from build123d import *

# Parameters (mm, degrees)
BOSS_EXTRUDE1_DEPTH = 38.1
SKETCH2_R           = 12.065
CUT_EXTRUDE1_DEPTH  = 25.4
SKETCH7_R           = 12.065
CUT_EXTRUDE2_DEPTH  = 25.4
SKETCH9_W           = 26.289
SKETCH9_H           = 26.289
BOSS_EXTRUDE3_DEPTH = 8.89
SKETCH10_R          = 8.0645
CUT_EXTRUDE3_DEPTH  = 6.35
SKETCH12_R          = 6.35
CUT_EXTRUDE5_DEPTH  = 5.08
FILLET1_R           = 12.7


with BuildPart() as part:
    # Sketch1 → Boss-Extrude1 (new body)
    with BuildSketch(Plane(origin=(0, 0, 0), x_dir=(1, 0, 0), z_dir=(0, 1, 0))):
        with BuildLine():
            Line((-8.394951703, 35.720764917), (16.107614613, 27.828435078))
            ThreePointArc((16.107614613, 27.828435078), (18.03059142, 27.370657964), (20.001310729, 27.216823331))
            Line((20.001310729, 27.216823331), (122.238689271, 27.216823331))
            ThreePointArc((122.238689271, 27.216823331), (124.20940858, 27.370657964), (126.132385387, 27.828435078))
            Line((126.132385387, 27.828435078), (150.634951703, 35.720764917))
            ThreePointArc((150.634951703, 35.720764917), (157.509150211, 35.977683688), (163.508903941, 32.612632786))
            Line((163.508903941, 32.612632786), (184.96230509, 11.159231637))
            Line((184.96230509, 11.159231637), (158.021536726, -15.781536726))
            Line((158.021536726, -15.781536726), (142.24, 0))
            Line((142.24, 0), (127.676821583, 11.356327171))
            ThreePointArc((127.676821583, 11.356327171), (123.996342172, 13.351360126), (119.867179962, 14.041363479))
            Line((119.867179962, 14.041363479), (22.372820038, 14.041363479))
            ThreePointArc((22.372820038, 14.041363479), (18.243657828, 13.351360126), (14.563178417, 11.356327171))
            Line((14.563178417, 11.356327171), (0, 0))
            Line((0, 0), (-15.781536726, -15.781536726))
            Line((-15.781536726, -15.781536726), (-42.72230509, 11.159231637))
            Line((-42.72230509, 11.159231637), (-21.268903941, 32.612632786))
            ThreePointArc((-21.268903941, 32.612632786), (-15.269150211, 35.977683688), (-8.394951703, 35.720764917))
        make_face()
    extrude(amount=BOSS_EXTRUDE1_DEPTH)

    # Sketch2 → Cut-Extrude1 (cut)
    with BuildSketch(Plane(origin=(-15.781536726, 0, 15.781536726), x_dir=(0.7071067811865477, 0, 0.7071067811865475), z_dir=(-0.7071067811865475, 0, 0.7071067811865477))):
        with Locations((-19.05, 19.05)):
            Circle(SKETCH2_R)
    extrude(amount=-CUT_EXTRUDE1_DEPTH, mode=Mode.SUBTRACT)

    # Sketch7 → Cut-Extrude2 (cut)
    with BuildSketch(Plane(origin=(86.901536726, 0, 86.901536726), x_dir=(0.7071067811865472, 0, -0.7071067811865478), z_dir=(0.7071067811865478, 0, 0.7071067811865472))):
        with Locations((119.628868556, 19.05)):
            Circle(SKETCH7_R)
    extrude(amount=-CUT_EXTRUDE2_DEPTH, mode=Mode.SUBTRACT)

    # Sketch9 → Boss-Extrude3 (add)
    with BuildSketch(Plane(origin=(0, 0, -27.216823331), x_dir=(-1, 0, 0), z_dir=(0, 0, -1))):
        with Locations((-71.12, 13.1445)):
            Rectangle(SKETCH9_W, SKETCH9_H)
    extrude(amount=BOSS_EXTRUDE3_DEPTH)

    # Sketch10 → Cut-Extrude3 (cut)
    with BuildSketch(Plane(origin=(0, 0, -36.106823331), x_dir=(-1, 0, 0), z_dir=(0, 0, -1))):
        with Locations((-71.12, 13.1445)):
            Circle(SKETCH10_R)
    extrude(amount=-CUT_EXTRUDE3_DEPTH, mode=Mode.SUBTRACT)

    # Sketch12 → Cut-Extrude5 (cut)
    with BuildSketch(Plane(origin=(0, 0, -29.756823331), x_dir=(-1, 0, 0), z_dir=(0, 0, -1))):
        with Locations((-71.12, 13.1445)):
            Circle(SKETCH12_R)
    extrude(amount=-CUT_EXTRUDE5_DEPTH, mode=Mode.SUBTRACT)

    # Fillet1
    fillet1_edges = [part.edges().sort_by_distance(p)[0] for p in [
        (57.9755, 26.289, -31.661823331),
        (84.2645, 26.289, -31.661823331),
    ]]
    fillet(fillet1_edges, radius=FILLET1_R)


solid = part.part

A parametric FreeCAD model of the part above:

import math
import FreeCAD as App
import Part
import Sketcher

V = App.Vector
Q = App.Units.Quantity


def edges_at(feature, points):
    """Names of the edges that pass closest to the given points."""
    edges = feature.Shape.Edges
    near = lambda p: min(range(len(edges)), key=lambda i: edges[i].distToShape(Part.Vertex(*p))[0])
    return sorted({f"Edge{near(p) + 1}" for p in points})

doc = App.newDocument("Part")
params = doc.addObject("Spreadsheet::Sheet", "Params")
for row, (alias, value) in enumerate([
    ("sketch1_radius", "0.5 in"),
    ("sketch1_length", "1.5 in"),
    ("pad1_length", "1.5 in"),
    ("sketch2_diameter", "0.95 in"),
    ("pocket1_length", "1 in"),
    ("sketch3_diameter", "0.95 in"),
    ("pocket2_length", "1 in"),
    ("sketch4_width", "1.035 in"),
    ("pad2_length", "0.35 in"),
    ("sketch5_diameter", "0.635 in"),
    ("pocket3_length", "0.25 in"),
    ("sketch6_diameter", "0.5 in"),
    ("pocket4_length", "0.2 in"),
    ("fillet_radius", "0.5 in"),
], start=1):
    params.set(f"A{row}", alias)
    params.set(f"B{row}", "=" + value)
    params.setAlias(f"B{row}", alias)

body = doc.addObject("PartDesign::Body", "Body")

# Sketch on XZ plane
sketch1 = body.newObject("Sketcher::SketchObject", "Sketch")
sketch1.AttachmentSupport = (doc.getObject("XZ_Plane"), [""])
sketch1.MapMode = "FlatFace"
sketch1.addGeometry([
    Part.LineSegment(V(16.1, -27.8, 0), V(-8.4, -35.7, 0)),  # 0
    Part.ArcOfCircle(Part.Circle(V(-12.3, -23.6, 0), V(0, 0, 1), 12.7), math.radians(-135), math.radians(-72)),  # 1
    Part.LineSegment(V(-21.3, -32.6, 0), V(-42.7, -11.2, 0)),  # 2
    Part.LineSegment(V(-42.7, -11.2, 0), V(-15.8, 15.8, 0)),  # 3
    Part.LineSegment(V(-15.8, 15.8, 0), V(0, 0, 0)),  # 4
    Part.LineSegment(V(0, 0, 0), V(14.6, -11.4, 0)),  # 5
    Part.ArcOfCircle(Part.Circle(V(22.4, -1.3, 0), V(0, 0, 1), 12.7), math.radians(-128), math.radians(-90)),  # 6
    Part.LineSegment(V(22.4, -14, 0), V(119.9, -14, 0)),  # 7
    Part.ArcOfCircle(Part.Circle(V(119.9, -1.3, 0), V(0, 0, 1), 12.7), math.radians(-90), math.radians(-52)),  # 8
    Part.LineSegment(V(127.7, -11.4, 0), V(142.2, 0, 0)),  # 9
    Part.LineSegment(V(142.2, 0, 0), V(158, 15.8, 0)),  # 10
    Part.LineSegment(V(158, 15.8, 0), V(185, -11.2, 0)),  # 11
    Part.LineSegment(V(185, -11.2, 0), V(163.5, -32.6, 0)),  # 12
    Part.ArcOfCircle(Part.Circle(V(154.5, -23.6, 0), V(0, 0, 1), 12.7), math.radians(-108), math.radians(-45)),  # 13
    Part.LineSegment(V(150.6, -35.7, 0), V(126.1, -27.8, 0)),  # 14
    Part.ArcOfCircle(Part.Circle(V(122.2, -39.9, 0), V(0, 0, 1), 12.7), math.radians(72.15), math.radians(90)),  # 15
    Part.LineSegment(V(122.2, -27.2, 0), V(20, -27.2, 0)),  # 16
    Part.ArcOfCircle(Part.Circle(V(20, -39.9, 0), V(0, 0, 1), 12.7), math.radians(90), math.radians(107.85)),  # 17
], False)
sketch1.addConstraint([
    Sketcher.Constraint("Tangent", 0, 2, 1, 2),
    Sketcher.Constraint("Tangent", 1, 1, 2, 1),
    Sketcher.Constraint("Coincident", 2, 2, 3, 1),
    Sketcher.Constraint("Coincident", 3, 2, 4, 1),
    Sketcher.Constraint("Coincident", 4, 2, 5, 1),
    Sketcher.Constraint("Tangent", 5, 2, 6, 1),
    Sketcher.Constraint("Tangent", 6, 2, 7, 1),
    Sketcher.Constraint("Tangent", 7, 2, 8, 1),
    Sketcher.Constraint("Tangent", 8, 2, 9, 1),
    Sketcher.Constraint("Coincident", 9, 2, 10, 1),
    Sketcher.Constraint("Coincident", 10, 2, 11, 1),
    Sketcher.Constraint("Coincident", 11, 2, 12, 1),
    Sketcher.Constraint("Tangent", 12, 2, 13, 2),
    Sketcher.Constraint("Tangent", 13, 1, 14, 1),
    Sketcher.Constraint("Tangent", 14, 2, 15, 1),
    Sketcher.Constraint("Tangent", 15, 2, 16, 1),
    Sketcher.Constraint("Tangent", 16, 2, 17, 1),
    Sketcher.Constraint("Tangent", 17, 2, 0, 1),
    Sketcher.Constraint("Horizontal", 7),
    Sketcher.Constraint("Horizontal", 16),
    Sketcher.Constraint("Coincident", 4, 2, -1, 1),
    Sketcher.Constraint("Equal", 1, 6),
    Sketcher.Constraint("Equal", 6, 8),
    Sketcher.Constraint("Equal", 8, 13),
    Sketcher.Constraint("Equal", 13, 15),
    Sketcher.Constraint("Equal", 15, 17),
    Sketcher.Constraint("PointOnObject", 9, 2, -1),
    Sketcher.Constraint("Perpendicular", 2, 3),
    Sketcher.Constraint("Perpendicular", 3, 4),
    Sketcher.Constraint("Perpendicular", 4, 10),
    Sketcher.Constraint("Perpendicular", 10, 11),
    Sketcher.Constraint("Perpendicular", 11, 12),
    Sketcher.Constraint("Horizontal", 1, 3, 13, 3),
    Sketcher.Constraint("Horizontal", 5, 2, 8, 2),
    Sketcher.Constraint("Horizontal", 3, 2, 10, 2),
    Sketcher.Constraint("Horizontal", 2, 2, 11, 2),
    Sketcher.Constraint("Horizontal", 1, 1, 12, 2),
    Sketcher.Constraint("Horizontal", 0, 2, 13, 1),
    Sketcher.Constraint("Radius", 1, Q("0.5 in")),
    Sketcher.Constraint("Distance", 3, Q("1.5 in")),
    Sketcher.Constraint("DistanceX", -1, 1, 9, 2, Q("5.6 in")),
    Sketcher.Constraint("DistanceX", 7, 1, 7, 2, 97.49436),
    Sketcher.Constraint("DistanceX", 16, 2, 16, 1, 102.237379),
    Sketcher.Constraint("DistanceY", 0, 2, 6, 3, 34.379401),
    Sketcher.Constraint("DistanceX", 2, 2, 1, 1, 21.453401),
    Sketcher.Constraint("DistanceY", 6, 3, 3, 2, 17.1229),
    Sketcher.Constraint("DistanceX", 6, 2, 8, 2, 105.304002),
])
sketch1.setExpression("Constraints[38]", "Params.sketch1_radius")
sketch1.setExpression("Constraints[39]", "Params.sketch1_length")
pad1 = body.newObject("PartDesign::Pad", "Pad")
pad1.Profile = sketch1
pad1.setExpression("Length", "Params.pad1_length")
pad1.Reversed = True

# Sketch on an angled plane
sketch2 = body.newObject("Sketcher::SketchObject", "Sketch001")
sketch2.Placement = App.Placement(V(-15.781537, 0, 15.781537), App.Rotation(V(0.707106781, 0, 0.707106781), V(0, 0.999999999, 0), V(-0.707106781, 0, 0.707106781), "ZXY"))
sketch2.addGeometry(Part.Circle(V(-19, 19, 0), V(0, 0, 1), 12), False)
sketch2.addConstraint([
    Sketcher.Constraint("Diameter", 0, Q("0.95 in")),
    Sketcher.Constraint("DistanceX", 0, 3, -1, 1, Q("0.75 in")),
    Sketcher.Constraint("DistanceY", -1, 1, 0, 3, Q("0.75 in")),
])
sketch2.setExpression("Constraints[0]", "Params.sketch2_diameter")
pocket1 = body.newObject("PartDesign::Pocket", "Pocket")
pocket1.Profile = sketch2
pocket1.setExpression("Length", "Params.pocket1_length")

# Sketch on an angled plane
sketch3 = body.newObject("Sketcher::SketchObject", "Sketch002")
sketch3.Placement = App.Placement(V(86.901537, 0, 86.901537), App.Rotation(V(0.707106781, 0, -0.707106781), V(0, 0.999999999, 0), V(0.707106781, 0, 0.707106781), "ZXY"))
sketch3.addGeometry(Part.Circle(V(120, 19, 0), V(0, 0, 1), 12), False)
sketch3.addConstraint([
    Sketcher.Constraint("Diameter", 0, Q("0.95 in")),
    Sketcher.Constraint("DistanceY", -1, 1, 0, 3, Q("0.75 in")),
    Sketcher.Constraint("DistanceX", -1, 1, 0, 3, 119.628868),
])
sketch3.setExpression("Constraints[0]", "Params.sketch3_diameter")
pocket2 = body.newObject("PartDesign::Pocket", "Pocket001")
pocket2.Profile = sketch3
pocket2.setExpression("Length", "Params.pocket2_length")

# Sketch on XY plane
sketch4 = body.newObject("Sketcher::SketchObject", "Sketch003")
sketch4.AttachmentSupport = (doc.getObject("XY_Plane"), [""])
sketch4.MapMode = "FlatFace"
sketch4.AttachmentOffset = App.Placement(V(0, 0, -27.216823), App.Rotation())
sketch4.addGeometry([
    Part.LineSegment(V(84, 26, 0), V(84, 0, 0)),
    Part.LineSegment(V(84, 0, 0), V(58, 0, 0)),
    Part.LineSegment(V(58, 0, 0), V(58, 26, 0)),
    Part.LineSegment(V(58, 26, 0), V(84, 26, 0)),
], False)
sketch4.addConstraint([
    Sketcher.Constraint("Coincident", 0, 2, 1, 1),
    Sketcher.Constraint("Coincident", 1, 2, 2, 1),
    Sketcher.Constraint("Coincident", 2, 2, 3, 1),
    Sketcher.Constraint("Coincident", 3, 2, 0, 1),
    Sketcher.Constraint("Vertical", 0),
    Sketcher.Constraint("Horizontal", 1),
    Sketcher.Constraint("Vertical", 2),
    Sketcher.Constraint("Horizontal", 3),
    Sketcher.Constraint("PointOnObject", 0, 2, -1),
    Sketcher.Constraint("Equal", 3, 0),
    Sketcher.Constraint("DistanceX", 1, 2, 1, 1, Q("1.035 in")),
    Sketcher.Constraint("DistanceX", -1, 1, 0, 2, Q("3.3175 in")),
])
sketch4.setExpression("Constraints[10]", "Params.sketch4_width")
pad2 = body.newObject("PartDesign::Pad", "Pad001")
pad2.Profile = sketch4
pad2.setExpression("Length", "Params.pad2_length")
pad2.Reversed = True

# Sketch on XY plane
sketch5 = body.newObject("Sketcher::SketchObject", "Sketch004")
sketch5.AttachmentSupport = (doc.getObject("XY_Plane"), [""])
sketch5.MapMode = "FlatFace"
sketch5.AttachmentOffset = App.Placement(V(0, 0, -36.106823), App.Rotation())
sketch5.addGeometry(Part.Circle(V(71, 13, 0), V(0, 0, 1), 8), False)
sketch5.addConstraint([
    Sketcher.Constraint("Diameter", 0, Q("0.635 in")),
    Sketcher.Constraint("DistanceX", -1, 1, 0, 3, Q("2.8 in")),
    Sketcher.Constraint("DistanceY", -1, 1, 0, 3, Q("0.5175 in")),
])
sketch5.setExpression("Constraints[0]", "Params.sketch5_diameter")
pocket3 = body.newObject("PartDesign::Pocket", "Pocket002")
pocket3.Profile = sketch5
pocket3.setExpression("Length", "Params.pocket3_length")
pocket3.Reversed = True

# Sketch on XY plane
sketch6 = body.newObject("Sketcher::SketchObject", "Sketch005")
sketch6.AttachmentSupport = (doc.getObject("XY_Plane"), [""])
sketch6.MapMode = "FlatFace"
sketch6.AttachmentOffset = App.Placement(V(0, 0, -29.756823), App.Rotation())
sketch6.addGeometry(Part.Circle(V(71, 13, 0), V(0, 0, 1), 6), False)
sketch6.addConstraint([
    Sketcher.Constraint("Diameter", 0, Q("0.5 in")),
    Sketcher.Constraint("DistanceX", -1, 1, 0, 3, Q("2.8 in")),
    Sketcher.Constraint("DistanceY", -1, 1, 0, 3, Q("0.5175 in")),
])
sketch6.setExpression("Constraints[0]", "Params.sketch6_diameter")
pocket4 = body.newObject("PartDesign::Pocket", "Pocket003")
pocket4.Profile = sketch6
pocket4.setExpression("Length", "Params.pocket4_length")
pocket4.Reversed = True
doc.recompute()

fillet = body.newObject("PartDesign::Fillet", "Fillet")
fillet.Base = (pocket4, edges_at(pocket4, [(57.975, 26.289, -31.662), (84.264, 26.289, -31.662)]))
fillet.setExpression("Radius", "Params.fillet_radius")

doc.recompute()
